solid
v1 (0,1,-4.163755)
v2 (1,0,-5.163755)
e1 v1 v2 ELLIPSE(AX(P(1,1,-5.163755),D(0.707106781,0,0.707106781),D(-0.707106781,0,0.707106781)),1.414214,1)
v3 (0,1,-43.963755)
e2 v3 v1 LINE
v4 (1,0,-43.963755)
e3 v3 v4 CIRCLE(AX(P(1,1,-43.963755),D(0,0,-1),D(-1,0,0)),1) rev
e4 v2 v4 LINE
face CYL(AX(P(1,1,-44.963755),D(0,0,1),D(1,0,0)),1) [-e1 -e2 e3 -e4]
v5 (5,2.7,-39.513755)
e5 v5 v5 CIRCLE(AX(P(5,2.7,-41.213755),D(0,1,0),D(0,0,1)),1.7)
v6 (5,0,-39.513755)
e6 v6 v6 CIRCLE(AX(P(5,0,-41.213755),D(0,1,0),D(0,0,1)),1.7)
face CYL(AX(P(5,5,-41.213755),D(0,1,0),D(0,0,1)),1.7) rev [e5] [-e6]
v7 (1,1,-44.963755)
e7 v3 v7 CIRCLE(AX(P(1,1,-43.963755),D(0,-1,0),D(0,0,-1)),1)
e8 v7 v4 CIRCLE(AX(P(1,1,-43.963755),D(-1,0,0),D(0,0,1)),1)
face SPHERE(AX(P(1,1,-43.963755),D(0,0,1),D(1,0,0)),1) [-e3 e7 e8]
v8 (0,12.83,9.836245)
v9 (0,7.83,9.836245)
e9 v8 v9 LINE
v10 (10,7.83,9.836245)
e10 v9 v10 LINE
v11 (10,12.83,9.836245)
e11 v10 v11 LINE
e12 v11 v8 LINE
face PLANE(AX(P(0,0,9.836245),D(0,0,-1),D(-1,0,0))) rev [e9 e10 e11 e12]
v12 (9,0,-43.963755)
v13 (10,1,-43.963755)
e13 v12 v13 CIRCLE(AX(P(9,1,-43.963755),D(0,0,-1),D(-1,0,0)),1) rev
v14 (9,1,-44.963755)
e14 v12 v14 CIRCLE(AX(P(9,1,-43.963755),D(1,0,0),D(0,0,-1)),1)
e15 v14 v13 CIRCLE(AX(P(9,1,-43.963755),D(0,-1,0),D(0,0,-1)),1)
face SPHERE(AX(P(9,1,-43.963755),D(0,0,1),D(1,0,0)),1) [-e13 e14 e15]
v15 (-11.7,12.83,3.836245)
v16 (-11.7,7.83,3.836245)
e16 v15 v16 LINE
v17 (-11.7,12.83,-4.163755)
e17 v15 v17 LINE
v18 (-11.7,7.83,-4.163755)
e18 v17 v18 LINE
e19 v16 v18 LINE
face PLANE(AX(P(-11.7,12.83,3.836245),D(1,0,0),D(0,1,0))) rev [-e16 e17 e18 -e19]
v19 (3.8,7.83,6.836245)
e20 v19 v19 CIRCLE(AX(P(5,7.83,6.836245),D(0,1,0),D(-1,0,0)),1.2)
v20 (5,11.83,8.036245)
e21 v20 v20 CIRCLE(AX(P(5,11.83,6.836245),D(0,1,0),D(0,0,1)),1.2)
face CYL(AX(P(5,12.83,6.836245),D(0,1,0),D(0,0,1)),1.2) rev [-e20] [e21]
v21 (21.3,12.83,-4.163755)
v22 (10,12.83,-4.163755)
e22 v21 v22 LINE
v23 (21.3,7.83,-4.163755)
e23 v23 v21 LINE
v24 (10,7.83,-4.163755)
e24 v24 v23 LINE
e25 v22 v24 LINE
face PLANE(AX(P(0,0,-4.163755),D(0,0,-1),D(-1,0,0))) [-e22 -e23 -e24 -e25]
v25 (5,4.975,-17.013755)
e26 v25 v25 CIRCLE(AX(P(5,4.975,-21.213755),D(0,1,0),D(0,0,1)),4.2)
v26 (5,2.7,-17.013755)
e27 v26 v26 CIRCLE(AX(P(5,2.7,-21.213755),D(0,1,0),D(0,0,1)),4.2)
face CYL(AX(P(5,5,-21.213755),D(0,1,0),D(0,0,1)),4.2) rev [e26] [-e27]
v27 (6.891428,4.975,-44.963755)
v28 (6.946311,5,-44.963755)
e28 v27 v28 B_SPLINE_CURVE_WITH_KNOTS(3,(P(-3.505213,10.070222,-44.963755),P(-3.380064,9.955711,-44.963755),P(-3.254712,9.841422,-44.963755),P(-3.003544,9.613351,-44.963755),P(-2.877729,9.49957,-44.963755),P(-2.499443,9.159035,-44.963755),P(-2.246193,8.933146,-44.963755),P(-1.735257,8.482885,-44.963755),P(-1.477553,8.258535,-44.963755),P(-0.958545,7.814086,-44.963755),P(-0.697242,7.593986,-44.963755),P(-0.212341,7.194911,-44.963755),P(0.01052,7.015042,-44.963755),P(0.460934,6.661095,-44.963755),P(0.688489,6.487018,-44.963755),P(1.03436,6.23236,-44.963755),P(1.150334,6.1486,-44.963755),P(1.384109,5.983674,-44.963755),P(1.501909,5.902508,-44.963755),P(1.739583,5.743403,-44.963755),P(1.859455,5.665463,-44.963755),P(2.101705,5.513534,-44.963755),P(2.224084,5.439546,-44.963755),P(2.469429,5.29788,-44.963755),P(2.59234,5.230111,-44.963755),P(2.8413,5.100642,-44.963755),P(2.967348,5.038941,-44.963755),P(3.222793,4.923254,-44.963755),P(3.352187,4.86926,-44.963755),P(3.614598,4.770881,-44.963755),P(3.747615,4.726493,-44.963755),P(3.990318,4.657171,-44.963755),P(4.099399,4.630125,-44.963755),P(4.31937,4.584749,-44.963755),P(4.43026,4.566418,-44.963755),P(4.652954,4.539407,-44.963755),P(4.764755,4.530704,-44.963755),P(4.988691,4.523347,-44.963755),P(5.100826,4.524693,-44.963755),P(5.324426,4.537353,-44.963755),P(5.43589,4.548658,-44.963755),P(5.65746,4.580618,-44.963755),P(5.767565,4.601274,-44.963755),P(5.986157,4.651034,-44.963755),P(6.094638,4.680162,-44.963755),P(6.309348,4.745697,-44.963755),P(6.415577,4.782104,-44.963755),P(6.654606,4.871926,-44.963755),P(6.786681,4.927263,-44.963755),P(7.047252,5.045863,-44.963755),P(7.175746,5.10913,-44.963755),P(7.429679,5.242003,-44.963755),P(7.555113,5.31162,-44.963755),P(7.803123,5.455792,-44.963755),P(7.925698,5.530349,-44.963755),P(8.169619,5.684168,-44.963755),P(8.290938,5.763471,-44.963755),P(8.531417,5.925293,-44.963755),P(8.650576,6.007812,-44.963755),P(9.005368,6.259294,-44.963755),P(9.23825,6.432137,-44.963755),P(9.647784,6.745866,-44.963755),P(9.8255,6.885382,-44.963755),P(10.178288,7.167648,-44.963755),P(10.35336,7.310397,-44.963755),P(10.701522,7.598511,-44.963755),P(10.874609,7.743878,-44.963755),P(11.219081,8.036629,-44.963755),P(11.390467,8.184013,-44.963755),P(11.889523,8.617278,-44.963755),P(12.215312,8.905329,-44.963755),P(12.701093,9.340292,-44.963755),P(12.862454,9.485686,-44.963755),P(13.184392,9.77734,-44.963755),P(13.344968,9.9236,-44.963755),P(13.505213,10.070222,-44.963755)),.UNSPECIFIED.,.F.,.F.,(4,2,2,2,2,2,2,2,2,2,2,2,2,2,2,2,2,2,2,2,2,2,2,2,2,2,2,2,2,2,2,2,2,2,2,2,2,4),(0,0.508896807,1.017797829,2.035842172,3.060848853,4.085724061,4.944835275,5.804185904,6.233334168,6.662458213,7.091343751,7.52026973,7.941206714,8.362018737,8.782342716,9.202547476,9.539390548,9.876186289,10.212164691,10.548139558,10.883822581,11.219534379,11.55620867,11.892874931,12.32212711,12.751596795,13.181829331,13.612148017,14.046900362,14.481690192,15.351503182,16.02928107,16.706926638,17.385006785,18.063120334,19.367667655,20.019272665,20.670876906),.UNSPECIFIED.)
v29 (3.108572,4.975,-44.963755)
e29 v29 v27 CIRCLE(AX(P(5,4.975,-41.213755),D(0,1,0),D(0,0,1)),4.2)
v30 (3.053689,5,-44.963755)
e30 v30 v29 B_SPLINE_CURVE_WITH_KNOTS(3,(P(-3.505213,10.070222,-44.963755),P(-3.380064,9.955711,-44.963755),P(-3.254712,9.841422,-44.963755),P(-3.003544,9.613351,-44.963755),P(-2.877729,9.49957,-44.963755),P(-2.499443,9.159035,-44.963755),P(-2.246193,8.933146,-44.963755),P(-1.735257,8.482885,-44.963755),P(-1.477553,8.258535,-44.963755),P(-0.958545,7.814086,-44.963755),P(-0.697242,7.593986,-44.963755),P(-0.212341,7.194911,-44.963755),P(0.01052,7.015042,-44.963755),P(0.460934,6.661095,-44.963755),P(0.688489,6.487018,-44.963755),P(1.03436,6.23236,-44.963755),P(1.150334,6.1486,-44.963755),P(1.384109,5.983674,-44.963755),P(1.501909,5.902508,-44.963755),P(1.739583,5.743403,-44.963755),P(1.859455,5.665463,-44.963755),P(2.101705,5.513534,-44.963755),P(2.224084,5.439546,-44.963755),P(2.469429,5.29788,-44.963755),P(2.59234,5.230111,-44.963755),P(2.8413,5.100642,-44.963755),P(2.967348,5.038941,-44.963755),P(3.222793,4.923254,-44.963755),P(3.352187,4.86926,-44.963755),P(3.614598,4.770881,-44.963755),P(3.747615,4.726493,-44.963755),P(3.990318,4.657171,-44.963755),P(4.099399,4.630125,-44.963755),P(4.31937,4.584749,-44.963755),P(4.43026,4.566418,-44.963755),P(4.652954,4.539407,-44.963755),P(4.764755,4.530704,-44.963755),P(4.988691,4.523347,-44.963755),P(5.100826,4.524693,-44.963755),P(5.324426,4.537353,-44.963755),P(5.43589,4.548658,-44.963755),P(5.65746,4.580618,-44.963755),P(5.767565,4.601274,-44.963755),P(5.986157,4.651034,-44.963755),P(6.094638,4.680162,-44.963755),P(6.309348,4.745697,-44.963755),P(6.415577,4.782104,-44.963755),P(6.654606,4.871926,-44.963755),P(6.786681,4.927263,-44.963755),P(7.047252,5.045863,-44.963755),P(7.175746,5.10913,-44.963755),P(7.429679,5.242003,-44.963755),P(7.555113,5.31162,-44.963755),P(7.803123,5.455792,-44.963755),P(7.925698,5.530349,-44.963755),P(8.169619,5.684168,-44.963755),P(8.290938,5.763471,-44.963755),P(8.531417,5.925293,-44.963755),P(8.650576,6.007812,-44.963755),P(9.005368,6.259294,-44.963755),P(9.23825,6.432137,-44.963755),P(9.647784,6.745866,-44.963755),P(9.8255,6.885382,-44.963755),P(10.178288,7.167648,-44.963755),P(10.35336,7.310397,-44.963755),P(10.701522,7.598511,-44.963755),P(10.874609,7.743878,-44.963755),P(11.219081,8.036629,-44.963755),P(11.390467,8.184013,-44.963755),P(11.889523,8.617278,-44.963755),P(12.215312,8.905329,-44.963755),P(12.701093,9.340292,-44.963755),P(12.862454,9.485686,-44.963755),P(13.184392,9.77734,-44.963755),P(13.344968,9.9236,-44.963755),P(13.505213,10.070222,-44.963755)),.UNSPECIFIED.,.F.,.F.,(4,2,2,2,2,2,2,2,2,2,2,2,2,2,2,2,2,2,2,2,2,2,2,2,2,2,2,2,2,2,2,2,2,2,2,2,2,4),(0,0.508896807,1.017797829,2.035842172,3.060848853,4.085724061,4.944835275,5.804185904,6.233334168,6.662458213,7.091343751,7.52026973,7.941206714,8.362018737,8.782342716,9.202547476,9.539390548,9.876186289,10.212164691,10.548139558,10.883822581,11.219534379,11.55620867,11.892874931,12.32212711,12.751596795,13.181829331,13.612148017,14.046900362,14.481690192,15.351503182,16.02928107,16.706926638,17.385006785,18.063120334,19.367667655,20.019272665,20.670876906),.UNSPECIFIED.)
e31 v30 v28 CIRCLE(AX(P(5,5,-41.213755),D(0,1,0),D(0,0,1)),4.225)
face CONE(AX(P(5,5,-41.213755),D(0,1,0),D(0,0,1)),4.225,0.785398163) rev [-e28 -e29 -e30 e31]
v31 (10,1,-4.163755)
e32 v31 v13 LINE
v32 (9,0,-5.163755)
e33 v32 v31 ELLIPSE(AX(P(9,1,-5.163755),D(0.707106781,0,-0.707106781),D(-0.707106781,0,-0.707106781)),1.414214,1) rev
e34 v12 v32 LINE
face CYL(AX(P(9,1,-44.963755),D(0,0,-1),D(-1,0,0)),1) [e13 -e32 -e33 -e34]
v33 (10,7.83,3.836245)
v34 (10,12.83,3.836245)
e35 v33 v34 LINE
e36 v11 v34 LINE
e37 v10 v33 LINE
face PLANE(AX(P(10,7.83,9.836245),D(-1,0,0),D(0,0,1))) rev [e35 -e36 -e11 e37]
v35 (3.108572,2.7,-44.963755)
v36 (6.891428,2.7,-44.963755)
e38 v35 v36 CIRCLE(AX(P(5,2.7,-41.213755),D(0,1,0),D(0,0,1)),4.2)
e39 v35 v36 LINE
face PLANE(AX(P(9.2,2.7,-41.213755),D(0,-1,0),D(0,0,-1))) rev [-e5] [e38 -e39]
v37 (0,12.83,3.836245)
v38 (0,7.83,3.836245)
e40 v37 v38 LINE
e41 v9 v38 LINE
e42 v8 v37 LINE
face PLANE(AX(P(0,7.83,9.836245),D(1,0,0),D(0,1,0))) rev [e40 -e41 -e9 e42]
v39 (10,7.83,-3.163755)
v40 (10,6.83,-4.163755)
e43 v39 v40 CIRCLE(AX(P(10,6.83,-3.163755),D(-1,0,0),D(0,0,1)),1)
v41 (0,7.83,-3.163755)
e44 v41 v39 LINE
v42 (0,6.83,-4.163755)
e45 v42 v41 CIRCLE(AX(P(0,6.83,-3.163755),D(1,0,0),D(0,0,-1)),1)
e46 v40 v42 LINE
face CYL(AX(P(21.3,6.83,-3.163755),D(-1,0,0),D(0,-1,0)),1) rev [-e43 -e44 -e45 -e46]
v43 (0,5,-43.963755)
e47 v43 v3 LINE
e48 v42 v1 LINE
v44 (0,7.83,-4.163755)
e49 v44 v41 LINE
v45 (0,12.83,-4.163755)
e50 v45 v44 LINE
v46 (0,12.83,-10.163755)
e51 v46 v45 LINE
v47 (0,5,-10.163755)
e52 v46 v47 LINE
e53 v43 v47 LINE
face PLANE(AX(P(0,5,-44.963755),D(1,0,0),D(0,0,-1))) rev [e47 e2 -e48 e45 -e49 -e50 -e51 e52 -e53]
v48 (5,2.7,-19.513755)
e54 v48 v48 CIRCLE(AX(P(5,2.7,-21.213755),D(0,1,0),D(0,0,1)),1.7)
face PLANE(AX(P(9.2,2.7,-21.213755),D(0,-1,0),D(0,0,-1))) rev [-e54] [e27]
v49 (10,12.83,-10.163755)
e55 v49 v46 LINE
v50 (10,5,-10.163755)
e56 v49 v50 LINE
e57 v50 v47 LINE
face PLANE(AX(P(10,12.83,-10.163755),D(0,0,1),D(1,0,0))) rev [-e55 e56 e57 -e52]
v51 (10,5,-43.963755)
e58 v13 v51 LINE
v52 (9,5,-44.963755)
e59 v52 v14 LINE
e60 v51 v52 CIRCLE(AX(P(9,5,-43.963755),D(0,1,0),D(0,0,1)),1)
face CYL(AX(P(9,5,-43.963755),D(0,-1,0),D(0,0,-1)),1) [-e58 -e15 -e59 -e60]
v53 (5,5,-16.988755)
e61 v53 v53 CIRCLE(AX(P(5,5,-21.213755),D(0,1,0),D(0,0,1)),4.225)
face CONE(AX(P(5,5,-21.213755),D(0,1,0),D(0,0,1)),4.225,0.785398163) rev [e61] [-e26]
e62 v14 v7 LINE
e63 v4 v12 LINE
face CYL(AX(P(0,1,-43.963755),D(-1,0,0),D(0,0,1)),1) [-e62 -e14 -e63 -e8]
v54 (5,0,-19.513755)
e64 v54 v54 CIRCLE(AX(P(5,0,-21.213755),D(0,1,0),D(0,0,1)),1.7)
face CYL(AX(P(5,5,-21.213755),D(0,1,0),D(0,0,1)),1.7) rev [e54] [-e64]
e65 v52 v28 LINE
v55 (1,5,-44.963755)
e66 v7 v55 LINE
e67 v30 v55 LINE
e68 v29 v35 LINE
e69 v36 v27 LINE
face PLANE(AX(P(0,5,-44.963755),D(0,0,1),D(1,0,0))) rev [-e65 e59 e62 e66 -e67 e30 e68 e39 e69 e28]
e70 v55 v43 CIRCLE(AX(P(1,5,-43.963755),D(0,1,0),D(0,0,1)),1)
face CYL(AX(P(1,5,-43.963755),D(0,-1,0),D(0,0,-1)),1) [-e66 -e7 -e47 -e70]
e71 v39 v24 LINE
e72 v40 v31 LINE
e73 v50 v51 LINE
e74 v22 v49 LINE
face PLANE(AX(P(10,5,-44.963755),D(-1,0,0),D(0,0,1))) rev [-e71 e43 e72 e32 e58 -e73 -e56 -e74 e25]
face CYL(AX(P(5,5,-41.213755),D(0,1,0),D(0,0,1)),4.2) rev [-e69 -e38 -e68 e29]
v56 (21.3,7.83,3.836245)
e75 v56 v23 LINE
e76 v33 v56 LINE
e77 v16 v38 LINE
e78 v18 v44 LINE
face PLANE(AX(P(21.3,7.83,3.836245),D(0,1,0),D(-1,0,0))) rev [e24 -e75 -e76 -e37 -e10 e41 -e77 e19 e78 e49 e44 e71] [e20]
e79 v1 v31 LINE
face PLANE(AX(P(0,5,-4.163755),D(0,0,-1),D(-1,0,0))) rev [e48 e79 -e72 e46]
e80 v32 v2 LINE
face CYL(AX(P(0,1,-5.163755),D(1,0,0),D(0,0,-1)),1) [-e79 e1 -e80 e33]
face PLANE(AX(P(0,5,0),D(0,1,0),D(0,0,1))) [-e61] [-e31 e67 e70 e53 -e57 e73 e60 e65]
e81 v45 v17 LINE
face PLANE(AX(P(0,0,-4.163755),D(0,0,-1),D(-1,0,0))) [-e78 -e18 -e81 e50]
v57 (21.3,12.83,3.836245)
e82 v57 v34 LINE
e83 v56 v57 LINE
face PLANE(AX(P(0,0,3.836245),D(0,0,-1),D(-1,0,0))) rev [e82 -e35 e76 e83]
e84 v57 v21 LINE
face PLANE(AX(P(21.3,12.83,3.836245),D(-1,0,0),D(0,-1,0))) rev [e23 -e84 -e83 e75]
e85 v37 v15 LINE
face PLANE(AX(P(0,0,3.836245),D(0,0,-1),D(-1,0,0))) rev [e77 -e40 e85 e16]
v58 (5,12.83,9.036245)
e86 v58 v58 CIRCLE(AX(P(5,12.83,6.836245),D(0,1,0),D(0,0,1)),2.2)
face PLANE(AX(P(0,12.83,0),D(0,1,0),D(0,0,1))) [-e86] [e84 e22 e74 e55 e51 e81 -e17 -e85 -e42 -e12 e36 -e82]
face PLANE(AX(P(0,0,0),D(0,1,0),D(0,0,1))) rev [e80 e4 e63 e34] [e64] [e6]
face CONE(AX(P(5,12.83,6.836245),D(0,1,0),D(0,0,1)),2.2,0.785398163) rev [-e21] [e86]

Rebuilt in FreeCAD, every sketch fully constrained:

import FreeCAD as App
import Part
import Sketcher
from FreeCAD import Vector
Q = App.Units.Quantity


def edges_at(feature, points):
    """Names of the edges that pass closest to the given points."""
    edges = feature.Shape.Edges
    near = lambda p: min(range(len(edges)), key=lambda i: edges[i].distToShape(Part.Vertex(*p))[0])
    return sorted({f"Edge{near(p) + 1}" for p in points})


def add_polygon(sketch, points):
    """Adds a closed chain of lines whose ends are joined by coincident constraints."""
    first, n = sketch.GeometryCount, len(points)
    for a, b in zip(points, points[1:] + points[:1]):
        sketch.addGeometry(Part.LineSegment(App.Vector(*a, 0), App.Vector(*b, 0)), False)
    for i in range(n):
        sketch.addConstraint(Sketcher.Constraint("Coincident", first + i, 2, first + (i + 1) % n, 1))

doc = App.newDocument("Part")
body = doc.addObject("PartDesign::Body", "Body")

sketch1 = body.newObject("Sketcher::SketchObject", "Sketch")
sketch1.AttachmentSupport = (doc.getObject("XZ_Plane"), [""])
sketch1.MapMode = "FlatFace"
add_polygon(sketch1, [(0, -45), (0, -4), (10, -4), (10, -45)])
sketch1.addConstraint([
    Sketcher.Constraint("Vertical", 0),
    Sketcher.Constraint("Horizontal", 1),
    Sketcher.Constraint("Vertical", 2),
    Sketcher.Constraint("Horizontal", 3),
    Sketcher.Constraint("PointOnObject", 0, 2, -2),
    Sketcher.Constraint("DistanceX", 1, 1, 1, 2, Q("10 mm")),
    Sketcher.Constraint("DistanceY", 0, 1, 0, 2, Q("40.8 mm")),
    Sketcher.Constraint("DistanceY", 0, 2, -1, 1, Q("4.163755 mm")),
])
pad1 = body.newObject("PartDesign::Pad", "Pad")
pad1.Profile = sketch1
pad1.Length = 5
pad1.Reversed = True

sketch2 = body.newObject("Sketcher::SketchObject", "Sketch001")
sketch2.AttachmentSupport = (doc.getObject("XZ_Plane"), [""])
sketch2.MapMode = "FlatFace"
sketch2.AttachmentOffset = App.Placement(Vector(0, 0, -5), App.Rotation())
add_polygon(sketch2, [(0, -10), (0, -4), (10, -4), (10, -10)])
sketch2.addConstraint([
    Sketcher.Constraint("Vertical", 0),
    Sketcher.Constraint("Horizontal", 1),
    Sketcher.Constraint("Vertical", 2),
    Sketcher.Constraint("Horizontal", 3),
    Sketcher.Constraint("PointOnObject", 0, 2, -2),
    Sketcher.Constraint("DistanceX", 1, 1, 1, 2, Q("10 mm")),
    Sketcher.Constraint("DistanceY", 0, 1, 0, 2, Q("6 mm")),
    Sketcher.Constraint("DistanceY", 0, 2, -1, 1, Q("4.163755 mm")),
])
pad2 = body.newObject("PartDesign::Pad", "Pad001")
pad2.Profile = sketch2
pad2.Length = 7.83
pad2.Reversed = True

sketch3 = body.newObject("Sketcher::SketchObject", "Sketch002")
sketch3.AttachmentSupport = (doc.getObject("XY_Plane"), [""])
sketch3.MapMode = "FlatFace"
sketch3.AttachmentOffset = App.Placement(Vector(0, 0, -4.163755), App.Rotation())
add_polygon(sketch3, [(-12, 13), (-12, 8), (21, 8), (21, 13)])
sketch3.addConstraint([
    Sketcher.Constraint("Vertical", 0),
    Sketcher.Constraint("Horizontal", 1),
    Sketcher.Constraint("Vertical", 2),
    Sketcher.Constraint("Horizontal", 3),
    Sketcher.Constraint("DistanceX", 1, 1, 1, 2, Q("33 mm")),
    Sketcher.Constraint("DistanceY", 0, 2, 0, 1, Q("5 mm")),
    Sketcher.Constraint("DistanceX", 0, 2, -1, 1, Q("11.7 mm")),
    Sketcher.Constraint("DistanceY", -1, 1, 0, 2, Q("7.83 mm")),
])
pad3 = body.newObject("PartDesign::Pad", "Pad002")
pad3.Profile = sketch3
pad3.Length = 8

sketch4 = body.newObject("Sketcher::SketchObject", "Sketch003")
sketch4.AttachmentSupport = (doc.getObject("XY_Plane"), [""])
sketch4.MapMode = "FlatFace"
sketch4.AttachmentOffset = App.Placement(Vector(0, 0, 3.836245), App.Rotation())
add_polygon(sketch4, [(0, 13), (0, 8), (10, 8), (10, 13)])
sketch4.addConstraint([
    Sketcher.Constraint("Vertical", 0),
    Sketcher.Constraint("Horizontal", 1),
    Sketcher.Constraint("Vertical", 2),
    Sketcher.Constraint("Horizontal", 3),
    Sketcher.Constraint("PointOnObject", 0, 2, -2),
    Sketcher.Constraint("DistanceX", 1, 1, 1, 2, Q("10 mm")),
    Sketcher.Constraint("DistanceY", 0, 2, 0, 1, Q("5 mm")),
    Sketcher.Constraint("DistanceY", -1, 1, 0, 2, Q("7.83 mm")),
])
pad4 = body.newObject("PartDesign::Pad", "Pad003")
pad4.Profile = sketch4
pad4.Length = 6

sketch5 = body.newObject("Sketcher::SketchObject", "Sketch004")
sketch5.AttachmentSupport = (doc.getObject("XZ_Plane"), [""])
sketch5.MapMode = "FlatFace"
sketch5.AttachmentOffset = App.Placement(Vector(0, 0, -12.83), App.Rotation())
sketch5.addGeometry(Part.Circle(Vector(5, 6.8, 0), Vector(0, 0, 1), 1.2), False)
sketch5.addConstraint([
    Sketcher.Constraint("Diameter", 0, Q("2.4 mm")),
    Sketcher.Constraint("DistanceX", -1, 1, 0, 3, Q("5 mm")),
    Sketcher.Constraint("DistanceY", -1, 1, 0, 3, Q("6.836245 mm")),
])
doc.recompute()
hole = body.newObject("PartDesign::Hole", "Hole")
hole.Profile = sketch5
hole.ThreadType = "None"
hole.Diameter = 2.4
hole.DepthType = "ThroughAll"
hole.HoleCutType = "Countersink"
hole.HoleCutDiameter = 4.4
hole.HoleCutCountersinkAngle = 90
hole.Reversed = True

sketch6 = body.newObject("Sketcher::SketchObject", "Sketch005")
sketch6.AttachmentSupport = (doc.getObject("YZ_Plane"), [""])
sketch6.MapMode = "FlatFace"
sketch6.AttachmentOffset = App.Placement(Vector(0, 0, 5), App.Rotation())
add_polygon(sketch6, [(0, -21.214), (5, -21.214), (5, -16.989), (4.975, -17.014), (2.7, -17.014), (2.7, -19.514), (0, -19.514)])
sketch6.addGeometry(Part.LineSegment(Vector(5, -21.214, 0), Vector(0, -21.214, 0)), True)
sketch6.addConstraint([
    Sketcher.Constraint("Horizontal", 0),
    Sketcher.Constraint("Vertical", 1),
    Sketcher.Constraint("Horizontal", 3),
    Sketcher.Constraint("Vertical", 4),
    Sketcher.Constraint("Horizontal", 5),
    Sketcher.Constraint("Vertical", 6),
    Sketcher.Constraint("Horizontal", 7),
    Sketcher.Constraint("Coincident", 7, 1, 0, 2),
    Sketcher.Constraint("PointOnObject", 5, 2, -2),
    Sketcher.Constraint("PointOnObject", 7, 2, -2),
    Sketcher.Constraint("DistanceX", 0, 1, 0, 2, Q("5 mm")),
    Sketcher.Constraint("Angle", 2, Q("-135 deg")),
    Sketcher.Constraint("DistanceX", 5, 2, 5, 1, Q("2.7 mm")),
    Sketcher.Constraint("DistanceY", 4, 2, 4, 1, Q("2.5 mm")),
    Sketcher.Constraint("DistanceY", 6, 2, 6, 1, Q("1.7 mm")),
    Sketcher.Constraint("DistanceX", 3, 2, 3, 1, Q("2.275 mm")),
    Sketcher.Constraint("DistanceY", 0, 2, -1, 1, Q("21.213755 mm")),
])
groove = body.newObject("PartDesign::Groove", "Groove")
groove.Profile = sketch6
groove.ReferenceAxis = (sketch6, ["Axis0"])
groove.Angle = 360
doc.recompute()

linearpattern = body.newObject("PartDesign::LinearPattern", "LinearPattern")
linearpattern.Originals = [groove]
linearpattern.Direction = (doc.getObject("Z_Axis"), [""])
linearpattern.Mode = "offset"
linearpattern.Offset = 20
linearpattern.Occurrences = 2
linearpattern.Reversed = True
body.Tip = linearpattern
doc.recompute()

fillet = body.newObject("PartDesign::Fillet", "Fillet")
fillet.Base = (linearpattern, edges_at(linearpattern, [
    (5, 7.83, -4.164),
    (5, 0, -44.964),
    (10, 0, -24.564),
    (5, 0, -4.164),
    (0, 0, -24.564),
    (0, 2.5, -44.964),
    (10, 2.5, -44.964),
]))
fillet.Radius = 1

doc.recompute()
